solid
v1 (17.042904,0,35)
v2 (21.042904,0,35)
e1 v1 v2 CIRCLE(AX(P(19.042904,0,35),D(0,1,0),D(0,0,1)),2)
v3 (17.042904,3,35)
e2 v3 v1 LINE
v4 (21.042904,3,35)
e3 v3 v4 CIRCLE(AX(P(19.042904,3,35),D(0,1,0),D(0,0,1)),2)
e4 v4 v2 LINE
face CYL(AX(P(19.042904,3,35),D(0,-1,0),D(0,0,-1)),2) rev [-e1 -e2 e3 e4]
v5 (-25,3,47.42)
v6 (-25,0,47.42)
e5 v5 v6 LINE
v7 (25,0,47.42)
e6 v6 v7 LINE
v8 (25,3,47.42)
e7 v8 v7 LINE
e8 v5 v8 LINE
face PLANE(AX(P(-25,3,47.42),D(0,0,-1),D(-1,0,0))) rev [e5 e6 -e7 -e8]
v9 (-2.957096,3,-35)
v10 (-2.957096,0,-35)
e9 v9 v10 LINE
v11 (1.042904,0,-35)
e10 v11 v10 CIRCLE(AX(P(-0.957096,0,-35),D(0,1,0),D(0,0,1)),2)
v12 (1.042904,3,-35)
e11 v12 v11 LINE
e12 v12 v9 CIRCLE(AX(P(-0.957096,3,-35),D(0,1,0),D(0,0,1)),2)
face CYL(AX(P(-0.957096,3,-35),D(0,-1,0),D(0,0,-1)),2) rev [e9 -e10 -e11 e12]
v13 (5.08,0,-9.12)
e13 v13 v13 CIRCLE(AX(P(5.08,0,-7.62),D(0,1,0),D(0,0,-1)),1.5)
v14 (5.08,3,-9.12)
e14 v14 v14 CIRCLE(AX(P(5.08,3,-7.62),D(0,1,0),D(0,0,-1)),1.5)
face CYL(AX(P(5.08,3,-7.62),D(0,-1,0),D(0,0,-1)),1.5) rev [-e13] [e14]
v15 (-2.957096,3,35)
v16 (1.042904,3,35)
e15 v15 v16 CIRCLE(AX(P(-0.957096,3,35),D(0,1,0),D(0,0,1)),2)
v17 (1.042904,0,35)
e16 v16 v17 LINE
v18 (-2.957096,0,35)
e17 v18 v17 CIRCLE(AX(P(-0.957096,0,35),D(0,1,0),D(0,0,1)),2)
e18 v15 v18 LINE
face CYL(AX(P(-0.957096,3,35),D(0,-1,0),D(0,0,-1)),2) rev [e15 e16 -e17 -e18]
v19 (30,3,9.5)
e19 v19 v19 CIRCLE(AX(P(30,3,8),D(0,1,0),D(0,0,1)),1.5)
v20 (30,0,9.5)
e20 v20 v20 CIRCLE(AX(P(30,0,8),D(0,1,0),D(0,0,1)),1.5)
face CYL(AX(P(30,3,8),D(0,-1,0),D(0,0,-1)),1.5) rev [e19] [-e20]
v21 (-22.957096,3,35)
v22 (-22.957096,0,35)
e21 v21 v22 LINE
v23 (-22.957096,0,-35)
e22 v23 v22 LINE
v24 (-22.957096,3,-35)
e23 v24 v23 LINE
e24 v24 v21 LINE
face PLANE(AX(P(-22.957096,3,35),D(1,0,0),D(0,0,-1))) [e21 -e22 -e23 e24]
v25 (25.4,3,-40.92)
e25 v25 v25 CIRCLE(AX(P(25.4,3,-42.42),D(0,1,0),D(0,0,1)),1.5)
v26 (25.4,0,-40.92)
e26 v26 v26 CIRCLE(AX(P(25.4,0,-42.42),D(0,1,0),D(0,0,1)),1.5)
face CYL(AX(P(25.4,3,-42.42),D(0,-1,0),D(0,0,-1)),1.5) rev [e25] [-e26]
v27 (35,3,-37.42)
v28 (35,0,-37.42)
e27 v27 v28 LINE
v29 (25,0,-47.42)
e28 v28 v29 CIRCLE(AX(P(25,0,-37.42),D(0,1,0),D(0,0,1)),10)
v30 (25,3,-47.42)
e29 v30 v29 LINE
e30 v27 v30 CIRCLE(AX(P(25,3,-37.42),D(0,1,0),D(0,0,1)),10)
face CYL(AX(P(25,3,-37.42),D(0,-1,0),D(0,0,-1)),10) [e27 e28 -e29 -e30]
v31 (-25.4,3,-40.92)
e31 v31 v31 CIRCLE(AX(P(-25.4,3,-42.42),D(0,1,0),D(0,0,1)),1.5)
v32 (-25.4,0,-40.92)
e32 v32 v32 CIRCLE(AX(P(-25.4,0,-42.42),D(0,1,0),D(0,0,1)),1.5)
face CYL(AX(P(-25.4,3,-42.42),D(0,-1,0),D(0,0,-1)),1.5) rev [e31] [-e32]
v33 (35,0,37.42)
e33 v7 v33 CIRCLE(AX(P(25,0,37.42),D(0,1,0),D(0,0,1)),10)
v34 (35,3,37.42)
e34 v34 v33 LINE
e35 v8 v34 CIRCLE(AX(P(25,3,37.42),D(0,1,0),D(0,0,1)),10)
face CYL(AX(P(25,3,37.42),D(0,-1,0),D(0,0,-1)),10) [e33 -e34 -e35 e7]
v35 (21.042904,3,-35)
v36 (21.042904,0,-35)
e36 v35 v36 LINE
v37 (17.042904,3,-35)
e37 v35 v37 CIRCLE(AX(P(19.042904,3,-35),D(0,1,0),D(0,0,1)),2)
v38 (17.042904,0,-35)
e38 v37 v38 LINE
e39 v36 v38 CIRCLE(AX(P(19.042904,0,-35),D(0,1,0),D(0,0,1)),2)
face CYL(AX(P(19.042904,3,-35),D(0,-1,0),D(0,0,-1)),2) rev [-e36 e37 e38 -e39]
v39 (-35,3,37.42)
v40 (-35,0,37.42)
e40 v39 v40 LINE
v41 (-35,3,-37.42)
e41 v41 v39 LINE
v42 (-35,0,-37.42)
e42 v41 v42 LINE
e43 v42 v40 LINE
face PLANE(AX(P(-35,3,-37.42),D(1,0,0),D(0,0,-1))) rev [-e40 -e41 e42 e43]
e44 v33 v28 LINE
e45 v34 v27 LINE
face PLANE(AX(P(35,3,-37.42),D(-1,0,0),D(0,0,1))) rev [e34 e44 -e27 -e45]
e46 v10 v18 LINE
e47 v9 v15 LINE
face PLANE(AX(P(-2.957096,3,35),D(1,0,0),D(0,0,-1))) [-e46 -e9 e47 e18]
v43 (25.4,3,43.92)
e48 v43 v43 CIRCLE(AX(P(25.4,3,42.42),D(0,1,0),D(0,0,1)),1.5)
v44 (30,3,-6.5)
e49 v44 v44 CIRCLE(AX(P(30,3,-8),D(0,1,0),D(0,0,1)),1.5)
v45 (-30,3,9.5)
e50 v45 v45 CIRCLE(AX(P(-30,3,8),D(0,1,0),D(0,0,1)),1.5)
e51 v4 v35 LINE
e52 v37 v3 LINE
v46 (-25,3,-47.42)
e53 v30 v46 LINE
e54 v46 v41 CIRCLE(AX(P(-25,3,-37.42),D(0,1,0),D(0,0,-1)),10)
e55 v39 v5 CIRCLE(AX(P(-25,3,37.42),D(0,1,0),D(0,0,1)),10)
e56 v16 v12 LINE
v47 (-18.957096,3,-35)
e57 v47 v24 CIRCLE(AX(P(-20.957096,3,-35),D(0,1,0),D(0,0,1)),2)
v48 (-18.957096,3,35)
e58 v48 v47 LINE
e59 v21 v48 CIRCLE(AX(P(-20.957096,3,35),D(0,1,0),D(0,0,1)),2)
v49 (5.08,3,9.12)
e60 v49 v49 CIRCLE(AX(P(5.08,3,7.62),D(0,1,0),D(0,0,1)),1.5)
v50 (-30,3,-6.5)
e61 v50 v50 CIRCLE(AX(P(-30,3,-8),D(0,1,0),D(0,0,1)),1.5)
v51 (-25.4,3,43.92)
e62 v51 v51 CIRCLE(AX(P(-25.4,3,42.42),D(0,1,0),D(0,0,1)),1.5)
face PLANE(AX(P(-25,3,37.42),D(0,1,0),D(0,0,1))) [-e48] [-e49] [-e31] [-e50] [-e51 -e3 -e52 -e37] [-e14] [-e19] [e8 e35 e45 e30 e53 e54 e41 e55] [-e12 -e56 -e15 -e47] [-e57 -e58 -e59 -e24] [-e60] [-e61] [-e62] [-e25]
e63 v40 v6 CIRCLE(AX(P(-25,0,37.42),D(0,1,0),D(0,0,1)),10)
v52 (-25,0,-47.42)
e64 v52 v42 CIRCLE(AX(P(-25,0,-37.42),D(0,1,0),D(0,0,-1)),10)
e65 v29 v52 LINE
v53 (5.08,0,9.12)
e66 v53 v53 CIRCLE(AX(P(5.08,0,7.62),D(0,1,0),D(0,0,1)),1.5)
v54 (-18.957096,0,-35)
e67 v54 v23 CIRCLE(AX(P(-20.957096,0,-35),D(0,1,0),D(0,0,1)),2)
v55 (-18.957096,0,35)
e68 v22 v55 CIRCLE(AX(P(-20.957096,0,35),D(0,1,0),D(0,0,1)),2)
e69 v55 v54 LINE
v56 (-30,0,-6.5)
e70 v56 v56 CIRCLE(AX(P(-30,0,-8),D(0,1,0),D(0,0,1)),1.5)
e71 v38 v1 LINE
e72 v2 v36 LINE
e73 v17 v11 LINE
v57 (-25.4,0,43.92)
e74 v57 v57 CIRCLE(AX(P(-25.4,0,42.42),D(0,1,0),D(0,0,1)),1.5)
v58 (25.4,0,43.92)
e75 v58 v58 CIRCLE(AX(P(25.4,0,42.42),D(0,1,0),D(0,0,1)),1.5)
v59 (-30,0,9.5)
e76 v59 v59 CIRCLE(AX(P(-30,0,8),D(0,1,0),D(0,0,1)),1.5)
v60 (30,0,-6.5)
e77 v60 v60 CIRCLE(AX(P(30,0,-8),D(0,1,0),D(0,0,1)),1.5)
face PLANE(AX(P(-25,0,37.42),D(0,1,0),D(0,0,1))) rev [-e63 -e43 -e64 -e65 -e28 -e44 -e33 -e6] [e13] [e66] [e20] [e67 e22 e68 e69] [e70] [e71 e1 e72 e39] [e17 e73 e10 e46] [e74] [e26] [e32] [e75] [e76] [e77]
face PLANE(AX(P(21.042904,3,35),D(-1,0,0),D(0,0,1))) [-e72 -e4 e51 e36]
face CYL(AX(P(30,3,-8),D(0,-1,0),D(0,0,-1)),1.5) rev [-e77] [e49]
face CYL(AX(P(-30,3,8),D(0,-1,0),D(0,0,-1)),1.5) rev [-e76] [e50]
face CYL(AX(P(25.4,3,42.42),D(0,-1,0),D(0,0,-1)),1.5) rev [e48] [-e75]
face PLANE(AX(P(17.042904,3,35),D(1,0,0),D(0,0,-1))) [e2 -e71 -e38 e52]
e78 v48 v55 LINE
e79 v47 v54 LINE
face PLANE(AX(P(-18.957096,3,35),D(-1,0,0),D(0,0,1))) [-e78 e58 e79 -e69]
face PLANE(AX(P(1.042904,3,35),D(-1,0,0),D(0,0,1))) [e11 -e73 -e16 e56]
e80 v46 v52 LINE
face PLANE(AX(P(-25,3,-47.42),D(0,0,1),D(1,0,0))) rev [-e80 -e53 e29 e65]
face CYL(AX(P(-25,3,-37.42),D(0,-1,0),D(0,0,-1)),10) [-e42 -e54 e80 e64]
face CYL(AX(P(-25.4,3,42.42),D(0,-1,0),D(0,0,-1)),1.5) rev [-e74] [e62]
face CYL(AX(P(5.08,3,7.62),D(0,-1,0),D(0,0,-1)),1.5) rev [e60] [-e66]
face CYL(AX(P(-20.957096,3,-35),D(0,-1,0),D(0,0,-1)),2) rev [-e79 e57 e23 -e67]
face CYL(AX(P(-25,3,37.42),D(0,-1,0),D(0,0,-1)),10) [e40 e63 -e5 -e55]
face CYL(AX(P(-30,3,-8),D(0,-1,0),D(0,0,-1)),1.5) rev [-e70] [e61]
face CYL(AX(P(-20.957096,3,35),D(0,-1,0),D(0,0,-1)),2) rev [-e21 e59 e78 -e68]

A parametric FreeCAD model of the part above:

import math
import FreeCAD as App
import Part
import Sketcher
from FreeCAD import Vector
Q = App.Units.Quantity

doc = App.newDocument("Part")
body = doc.addObject("PartDesign::Body", "Body")

# Sketch on XZ plane
sketch1 = body.newObject("Sketcher::SketchObject", "Sketch")
sketch1.AttachmentSupport = (doc.getObject("XZ_Plane"), [""])
sketch1.MapMode = "FlatFace"
sketch1.addGeometry([
    Part.LineSegment(Vector(25, -47.4, 0), Vector(-25, -47.4, 0)),  # 0
    Part.ArcOfCircle(Part.Circle(Vector(-25, -37.4, 0), Vector(0, 0, 1), 10), math.radians(180), math.radians(270)),  # 1
    Part.LineSegment(Vector(-35, -37.4, 0), Vector(-35, 37.4, 0)),  # 2
    Part.ArcOfCircle(Part.Circle(Vector(-25, 37.4, 0), Vector(0, 0, 1), 10), math.radians(90), math.radians(180)),  # 3
    Part.LineSegment(Vector(-25, 47.4, 0), Vector(25, 47.4, 0)),  # 4
    Part.ArcOfCircle(Part.Circle(Vector(25, 37.4, 0), Vector(0, 0, 1), 10), math.radians(0), math.radians(90)),  # 5
    Part.LineSegment(Vector(35, 37.4, 0), Vector(35, -37.4, 0)),  # 6
    Part.ArcOfCircle(Part.Circle(Vector(25, -37.4, 0), Vector(0, 0, 1), 10), math.radians(-90), math.radians(0)),  # 7
    Part.Circle(Vector(25.4, 42.4, 0), Vector(0, 0, 1), 1.5),  # 8
    Part.Circle(Vector(30, 8, 0), Vector(0, 0, 1), 1.5),  # 9
    Part.Circle(Vector(5.1, 7.6, 0), Vector(0, 0, 1), 1.5),  # 10
    Part.Circle(Vector(-25.4, 42.4, 0), Vector(0, 0, 1), 1.5),  # 11
    Part.Circle(Vector(-30, 8, 0), Vector(0, 0, 1), 1.5),  # 12
    Part.Circle(Vector(30, -8, 0), Vector(0, 0, 1), 1.5),  # 13
    Part.LineSegment(Vector(17, 35, 0), Vector(17, -35, 0)),  # 14
    Part.ArcOfCircle(Part.Circle(Vector(19, -35, 0), Vector(0, 0, 1), 2), math.radians(180), math.radians(360)),  # 15
    Part.LineSegment(Vector(21, -35, 0), Vector(21, 35, 0)),  # 16
    Part.ArcOfCircle(Part.Circle(Vector(19, 35, 0), Vector(0, 0, 1), 2), math.radians(0), math.radians(180)),  # 17
    Part.Circle(Vector(5.1, -7.6, 0), Vector(0, 0, 1), 1.5),  # 18
    Part.Circle(Vector(25.4, -42.4, 0), Vector(0, 0, 1), 1.5),  # 19
    Part.LineSegment(Vector(-3, 35, 0), Vector(-3, -35, 0)),  # 20
    Part.ArcOfCircle(Part.Circle(Vector(-1, -35, 0), Vector(0, 0, 1), 2), math.radians(180), math.radians(360)),  # 21
    Part.LineSegment(Vector(1, -35, 0), Vector(1, 35, 0)),  # 22
    Part.ArcOfCircle(Part.Circle(Vector(-1, 35, 0), Vector(0, 0, 1), 2), math.radians(0), math.radians(180)),  # 23
    Part.LineSegment(Vector(-23, 35, 0), Vector(-23, -35, 0)),  # 24
    Part.ArcOfCircle(Part.Circle(Vector(-21, -35, 0), Vector(0, 0, 1), 2), math.radians(180), math.radians(360)),  # 25
    Part.LineSegment(Vector(-19, -35, 0), Vector(-19, 35, 0)),  # 26
    Part.ArcOfCircle(Part.Circle(Vector(-21, 35, 0), Vector(0, 0, 1), 2), math.radians(0), math.radians(180)),  # 27
    Part.Circle(Vector(-30, -8, 0), Vector(0, 0, 1), 1.5),  # 28
    Part.Circle(Vector(-25.4, -42.4, 0), Vector(0, 0, 1), 1.5),  # 29
], False)
sketch1.addConstraint([
    Sketcher.Constraint("Tangent", 0, 2, 1, 2),
    Sketcher.Constraint("Tangent", 1, 1, 2, 1),
    Sketcher.Constraint("Tangent", 2, 2, 3, 2),
    Sketcher.Constraint("Tangent", 3, 1, 4, 1),
    Sketcher.Constraint("Tangent", 4, 2, 5, 2),
    Sketcher.Constraint("Tangent", 5, 1, 6, 1),
    Sketcher.Constraint("Tangent", 6, 2, 7, 2),
    Sketcher.Constraint("Tangent", 7, 1, 0, 1),
    Sketcher.Constraint("Tangent", 14, 2, 15, 1),
    Sketcher.Constraint("Tangent", 15, 2, 16, 1),
    Sketcher.Constraint("Tangent", 16, 2, 17, 1),
    Sketcher.Constraint("Tangent", 17, 2, 14, 1),
    Sketcher.Constraint("Tangent", 20, 2, 21, 1),
    Sketcher.Constraint("Tangent", 21, 2, 22, 1),
    Sketcher.Constraint("Tangent", 22, 2, 23, 1),
    Sketcher.Constraint("Tangent", 23, 2, 20, 1),
    Sketcher.Constraint("Tangent", 24, 2, 25, 1),
    Sketcher.Constraint("Tangent", 25, 2, 26, 1),
    Sketcher.Constraint("Tangent", 26, 2, 27, 1),
    Sketcher.Constraint("Tangent", 27, 2, 24, 1),
    Sketcher.Constraint("Horizontal", 0),
    Sketcher.Constraint("Vertical", 2),
    Sketcher.Constraint("Horizontal", 4),
    Sketcher.Constraint("Vertical", 6),
    Sketcher.Constraint("Vertical", 14),
    Sketcher.Constraint("Vertical", 16),
    Sketcher.Constraint("Vertical", 20),
    Sketcher.Constraint("Vertical", 22),
    Sketcher.Constraint("Vertical", 24),
    Sketcher.Constraint("Vertical", 26),
    Sketcher.Constraint("Equal", 1, 3),
    Sketcher.Constraint("Equal", 3, 5),
    Sketcher.Constraint("Equal", 5, 7),
    Sketcher.Constraint("Equal", 8, 9),
    Sketcher.Constraint("Equal", 9, 10),
    Sketcher.Constraint("Equal", 10, 11),
    Sketcher.Constraint("Equal", 11, 12),
    Sketcher.Constraint("Equal", 12, 13),
    Sketcher.Constraint("Equal", 13, 18),
    Sketcher.Constraint("Equal", 18, 19),
    Sketcher.Constraint("Equal", 17, 21),
    Sketcher.Constraint("Equal", 23, 25),
    Sketcher.Constraint("Equal", 19, 28),
    Sketcher.Constraint("Equal", 28, 29),
    Sketcher.Constraint("Symmetric", 1, 3, 5, 3, -1, 1),
    Sketcher.Constraint("Symmetric", 12, 3, 13, 3, -1, 1),
    Sketcher.Constraint("Symmetric", 11, 3, 19, 3, -1, 1),
    Sketcher.Constraint("Symmetric", 9, 3, 28, 3, -1, 1),
    Sketcher.Constraint("Symmetric", 8, 3, 29, 3, -1, 1),
    Sketcher.Constraint("Symmetric", 8, 3, 11, 3, -2),
    Sketcher.Constraint("Symmetric", 9, 3, 12, 3, -2),
    Sketcher.Constraint("Symmetric", 10, 3, 18, 3, -1),
    Sketcher.Constraint("Horizontal", 15, 3, 21, 3),
    Sketcher.Constraint("Horizontal", 17, 3, 23, 3),
    Sketcher.Constraint("Horizontal", 21, 3, 25, 3),
    Sketcher.Constraint("Horizontal", 23, 3, 27, 3),
    Sketcher.Constraint("Diameter", 8, Q("3 mm")),
    Sketcher.Constraint("Radius", 1, Q("10 mm")),
    Sketcher.Constraint("Radius", 15, Q("2 mm")),
    Sketcher.Constraint("DistanceX", 0, 2, 0, 1, Q("50 mm")),
    Sketcher.Constraint("DistanceY", 14, 2, 14, 1, Q("70 mm")),
    Sketcher.Constraint("DistanceX", -1, 1, 9, 3, Q("30 mm")),
    Sketcher.Constraint("DistanceY", -1, 1, 9, 3, Q("8 mm")),
    Sketcher.Constraint("DistanceY", 15, 3, -1, 1, Q("35 mm")),
    Sketcher.Constraint("DistanceY", 5, 3, 8, 3, Q("5 mm")),
    Sketcher.Constraint("DistanceX", 21, 3, 15, 3, Q("20 mm")),
    Sketcher.Constraint("DistanceX", 25, 3, 21, 3, Q("20 mm")),
    Sketcher.Constraint("DistanceY", 2, 1, 2, 2, Q("74.84 mm")),
    Sketcher.Constraint("DistanceX", -1, 1, 8, 3, Q("25.4 mm")),
    Sketcher.Constraint("DistanceY", 10, 3, 5, 3, Q("29.8 mm")),
    Sketcher.Constraint("DistanceX", -1, 1, 10, 3, Q("5.08 mm")),
    Sketcher.Constraint("DistanceX", -1, 1, 15, 3, Q("19.042904 mm")),
])
pad1 = body.newObject("PartDesign::Pad", "Pad")
pad1.Profile = sketch1
pad1.Length = 3
pad1.Reversed = True

doc.recompute()
